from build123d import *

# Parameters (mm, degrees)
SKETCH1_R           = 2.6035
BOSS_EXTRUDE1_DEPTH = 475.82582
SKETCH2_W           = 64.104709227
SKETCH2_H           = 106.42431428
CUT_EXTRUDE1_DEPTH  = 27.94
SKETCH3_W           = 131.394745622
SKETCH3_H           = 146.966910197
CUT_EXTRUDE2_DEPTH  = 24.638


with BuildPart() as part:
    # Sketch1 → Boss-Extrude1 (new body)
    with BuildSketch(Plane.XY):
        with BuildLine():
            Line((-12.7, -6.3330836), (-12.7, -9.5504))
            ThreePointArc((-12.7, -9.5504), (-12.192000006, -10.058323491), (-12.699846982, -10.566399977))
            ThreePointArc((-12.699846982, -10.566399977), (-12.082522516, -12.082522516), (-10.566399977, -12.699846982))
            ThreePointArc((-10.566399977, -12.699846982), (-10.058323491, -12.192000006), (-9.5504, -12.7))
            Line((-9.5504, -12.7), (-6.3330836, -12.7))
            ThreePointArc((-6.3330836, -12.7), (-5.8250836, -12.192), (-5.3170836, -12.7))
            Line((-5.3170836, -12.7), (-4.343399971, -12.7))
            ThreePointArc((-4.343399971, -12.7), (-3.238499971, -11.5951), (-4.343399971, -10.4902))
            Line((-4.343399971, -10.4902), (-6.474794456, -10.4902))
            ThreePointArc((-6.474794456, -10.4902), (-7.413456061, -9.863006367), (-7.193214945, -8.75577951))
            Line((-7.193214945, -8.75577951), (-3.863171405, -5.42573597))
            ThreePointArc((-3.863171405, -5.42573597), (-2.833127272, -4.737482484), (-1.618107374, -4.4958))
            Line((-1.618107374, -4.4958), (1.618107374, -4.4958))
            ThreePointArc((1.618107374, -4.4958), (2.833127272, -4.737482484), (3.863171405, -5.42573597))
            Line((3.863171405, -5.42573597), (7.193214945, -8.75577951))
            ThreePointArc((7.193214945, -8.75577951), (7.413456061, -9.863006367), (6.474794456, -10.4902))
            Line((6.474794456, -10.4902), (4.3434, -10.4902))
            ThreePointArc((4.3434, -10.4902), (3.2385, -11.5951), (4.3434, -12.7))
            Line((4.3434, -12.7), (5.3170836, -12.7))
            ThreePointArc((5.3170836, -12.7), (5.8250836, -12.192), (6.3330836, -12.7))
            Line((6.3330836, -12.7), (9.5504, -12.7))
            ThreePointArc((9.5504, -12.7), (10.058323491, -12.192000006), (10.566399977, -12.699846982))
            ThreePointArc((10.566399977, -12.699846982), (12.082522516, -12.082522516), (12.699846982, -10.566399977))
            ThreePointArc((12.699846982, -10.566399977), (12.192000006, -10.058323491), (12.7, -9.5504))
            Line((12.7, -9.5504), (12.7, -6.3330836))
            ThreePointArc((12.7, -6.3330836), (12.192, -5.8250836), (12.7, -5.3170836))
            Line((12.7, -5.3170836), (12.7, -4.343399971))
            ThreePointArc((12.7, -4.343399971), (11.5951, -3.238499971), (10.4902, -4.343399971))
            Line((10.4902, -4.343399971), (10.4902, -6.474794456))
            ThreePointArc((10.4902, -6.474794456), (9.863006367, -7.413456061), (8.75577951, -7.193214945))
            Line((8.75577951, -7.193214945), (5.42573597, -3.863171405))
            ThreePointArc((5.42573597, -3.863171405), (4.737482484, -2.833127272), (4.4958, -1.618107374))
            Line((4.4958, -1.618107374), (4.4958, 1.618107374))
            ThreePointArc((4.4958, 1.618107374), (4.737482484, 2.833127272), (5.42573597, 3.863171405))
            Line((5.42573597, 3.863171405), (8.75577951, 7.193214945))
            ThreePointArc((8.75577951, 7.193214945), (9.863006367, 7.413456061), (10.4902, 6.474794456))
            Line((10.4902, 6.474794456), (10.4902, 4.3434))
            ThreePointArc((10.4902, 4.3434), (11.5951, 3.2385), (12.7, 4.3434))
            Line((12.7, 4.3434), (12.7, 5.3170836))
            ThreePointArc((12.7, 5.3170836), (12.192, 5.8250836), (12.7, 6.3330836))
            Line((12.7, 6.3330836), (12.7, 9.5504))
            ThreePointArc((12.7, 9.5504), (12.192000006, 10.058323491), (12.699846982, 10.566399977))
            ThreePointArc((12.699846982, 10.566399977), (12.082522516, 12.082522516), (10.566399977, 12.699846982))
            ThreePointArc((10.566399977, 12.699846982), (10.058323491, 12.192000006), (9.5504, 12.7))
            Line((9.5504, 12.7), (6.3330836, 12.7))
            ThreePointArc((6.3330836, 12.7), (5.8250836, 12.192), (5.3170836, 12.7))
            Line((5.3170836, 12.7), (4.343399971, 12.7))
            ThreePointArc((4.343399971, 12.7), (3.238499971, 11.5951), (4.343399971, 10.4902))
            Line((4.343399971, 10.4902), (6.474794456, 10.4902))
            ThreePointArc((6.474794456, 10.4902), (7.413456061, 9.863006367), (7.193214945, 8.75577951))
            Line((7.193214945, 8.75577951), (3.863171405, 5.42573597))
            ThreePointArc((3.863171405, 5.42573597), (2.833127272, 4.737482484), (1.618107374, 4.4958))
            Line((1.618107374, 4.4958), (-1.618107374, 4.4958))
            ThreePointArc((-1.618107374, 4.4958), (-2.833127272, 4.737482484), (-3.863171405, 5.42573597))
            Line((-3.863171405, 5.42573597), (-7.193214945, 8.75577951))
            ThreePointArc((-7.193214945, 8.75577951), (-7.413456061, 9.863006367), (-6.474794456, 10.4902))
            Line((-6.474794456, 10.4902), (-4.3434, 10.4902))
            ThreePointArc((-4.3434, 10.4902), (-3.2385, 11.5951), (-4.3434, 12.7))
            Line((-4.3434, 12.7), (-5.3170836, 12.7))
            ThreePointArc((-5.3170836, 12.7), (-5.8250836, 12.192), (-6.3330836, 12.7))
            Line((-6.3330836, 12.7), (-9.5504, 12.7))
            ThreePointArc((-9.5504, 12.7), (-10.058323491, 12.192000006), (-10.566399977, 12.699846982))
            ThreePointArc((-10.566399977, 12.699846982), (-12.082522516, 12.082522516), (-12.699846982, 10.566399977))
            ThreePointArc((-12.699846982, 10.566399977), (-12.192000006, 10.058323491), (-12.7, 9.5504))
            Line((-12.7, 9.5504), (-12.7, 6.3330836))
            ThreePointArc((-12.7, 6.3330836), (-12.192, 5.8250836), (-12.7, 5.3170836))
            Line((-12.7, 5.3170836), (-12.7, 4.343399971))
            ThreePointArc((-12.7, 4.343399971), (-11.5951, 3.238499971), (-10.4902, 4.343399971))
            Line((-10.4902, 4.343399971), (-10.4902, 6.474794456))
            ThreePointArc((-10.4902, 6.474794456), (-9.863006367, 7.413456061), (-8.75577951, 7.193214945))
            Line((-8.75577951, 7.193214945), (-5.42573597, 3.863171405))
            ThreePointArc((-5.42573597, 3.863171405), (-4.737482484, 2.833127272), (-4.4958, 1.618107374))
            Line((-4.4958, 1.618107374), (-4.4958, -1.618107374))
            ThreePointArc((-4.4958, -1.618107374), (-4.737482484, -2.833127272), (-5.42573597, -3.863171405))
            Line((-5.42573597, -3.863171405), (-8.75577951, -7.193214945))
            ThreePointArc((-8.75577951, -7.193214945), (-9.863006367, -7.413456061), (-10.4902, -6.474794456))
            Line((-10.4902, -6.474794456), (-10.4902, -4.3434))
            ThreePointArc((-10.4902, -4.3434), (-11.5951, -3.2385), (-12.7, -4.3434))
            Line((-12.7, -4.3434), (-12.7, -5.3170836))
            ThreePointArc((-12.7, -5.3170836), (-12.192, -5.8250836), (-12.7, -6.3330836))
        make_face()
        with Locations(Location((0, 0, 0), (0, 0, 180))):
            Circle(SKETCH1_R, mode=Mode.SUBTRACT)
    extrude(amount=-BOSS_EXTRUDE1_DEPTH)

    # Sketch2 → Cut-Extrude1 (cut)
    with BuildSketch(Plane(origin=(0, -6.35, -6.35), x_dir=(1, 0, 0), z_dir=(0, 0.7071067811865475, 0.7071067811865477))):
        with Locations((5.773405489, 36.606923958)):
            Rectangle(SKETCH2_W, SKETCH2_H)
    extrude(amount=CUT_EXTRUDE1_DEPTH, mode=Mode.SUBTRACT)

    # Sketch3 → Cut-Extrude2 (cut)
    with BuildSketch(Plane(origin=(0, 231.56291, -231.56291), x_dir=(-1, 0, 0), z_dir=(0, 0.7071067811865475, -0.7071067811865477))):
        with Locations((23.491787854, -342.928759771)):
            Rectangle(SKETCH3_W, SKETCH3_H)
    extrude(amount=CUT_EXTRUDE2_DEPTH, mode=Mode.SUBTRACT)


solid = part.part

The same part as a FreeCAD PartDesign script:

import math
import FreeCAD as App
import Part
import Sketcher

V = App.Vector
Q = App.Units.Quantity

doc = App.newDocument("Part")
body = doc.addObject("PartDesign::Body", "Body")

# Sketch on XY plane
sketch1 = doc.addObject("Sketcher::SketchObject", "Sketch")
body.addObject(sketch1)
sketch1.AttachmentSupport = (doc.XY_Plane, [""])
sketch1.MapMode = "FlatFace"
sketch1.addGeometry([
    Part.LineSegment(V(-12.7, -6.3, 0), V(-12.7, -9.6, 0)),  # 0
    Part.ArcOfCircle(Part.Circle(V(-12.7, -10.1, 0), V(0, 0, 1), 0.5), math.radians(-90), math.radians(90)),  # 1
    Part.ArcOfCircle(Part.Circle(V(-10.6, -10.6, 0), V(0, 0, 1), 2.1), math.radians(179), math.radians(271)),  # 2
    Part.ArcOfCircle(Part.Circle(V(-10.1, -12.7, 0), V(0, 0, 1), 0.5), math.radians(0), math.radians(180)),  # 3
    Part.LineSegment(V(-9.6, -12.7, 0), V(-6.3, -12.7, 0)),  # 4
    Part.ArcOfCircle(Part.Circle(V(-5.8, -12.7, 0), V(0, 0, 1), 0.5), math.radians(0), math.radians(180)),  # 5
    Part.LineSegment(V(-5.3, -12.7, 0), V(-4.3, -12.7, 0)),  # 6
    Part.ArcOfCircle(Part.Circle(V(-4.3, -11.6, 0), V(0, 0, 1), 1.1), math.radians(-90), math.radians(90)),  # 7
    Part.LineSegment(V(-4.3, -10.5, 0), V(-6.5, -10.5, 0)),  # 8
    Part.ArcOfCircle(Part.Circle(V(-6.5, -9.5, 0), V(0, 0, 1), 1), math.radians(135), math.radians(270)),  # 9
    Part.LineSegment(V(-7.2, -8.8, 0), V(-3.9, -5.4, 0)),  # 10
    Part.ArcOfCircle(Part.Circle(V(-1.6, -7.7, 0), V(0, 0, 1), 3.2), math.radians(90), math.radians(135)),  # 11
    Part.LineSegment(V(-1.6, -4.5, 0), V(1.6, -4.5, 0)),  # 12
    Part.ArcOfCircle(Part.Circle(V(1.6, -7.7, 0), V(0, 0, 1), 3.2), math.radians(45), math.radians(90)),  # 13
    Part.LineSegment(V(3.9, -5.4, 0), V(7.2, -8.8, 0)),  # 14
    Part.ArcOfCircle(Part.Circle(V(6.5, -9.5, 0), V(0, 0, 1), 1), math.radians(-90), math.radians(45)),  # 15
    Part.LineSegment(V(6.5, -10.5, 0), V(4.3, -10.5, 0)),  # 16
    Part.ArcOfCircle(Part.Circle(V(4.3, -11.6, 0), V(0, 0, 1), 1.1), math.radians(90), math.radians(270)),  # 17
    Part.LineSegment(V(4.3, -12.7, 0), V(5.3, -12.7, 0)),  # 18
    Part.ArcOfCircle(Part.Circle(V(5.8, -12.7, 0), V(0, 0, 1), 0.5), math.radians(0), math.radians(180)),  # 19
    Part.LineSegment(V(6.3, -12.7, 0), V(9.6, -12.7, 0)),  # 20
    Part.ArcOfCircle(Part.Circle(V(10.1, -12.7, 0), V(0, 0, 1), 0.5), math.radians(0), math.radians(180)),  # 21
    Part.ArcOfCircle(Part.Circle(V(10.6, -10.6, 0), V(0, 0, 1), 2.1), math.radians(-91), math.radians(1)),  # 22
    Part.ArcOfCircle(Part.Circle(V(12.7, -10.1, 0), V(0, 0, 1), 0.5), math.radians(90), math.radians(270)),  # 23
    Part.LineSegment(V(12.7, -9.6, 0), V(12.7, -6.3, 0)),  # 24
    Part.ArcOfCircle(Part.Circle(V(12.7, -5.8, 0), V(0, 0, 1), 0.5), math.radians(90), math.radians(270)),  # 25
    Part.LineSegment(V(12.7, -5.3, 0), V(12.7, -4.3, 0)),  # 26
    Part.ArcOfCircle(Part.Circle(V(11.6, -4.3, 0), V(0, 0, 1), 1.1), math.radians(0), math.radians(180)),  # 27
    Part.LineSegment(V(10.5, -4.3, 0), V(10.5, -6.5, 0)),  # 28
    Part.ArcOfCircle(Part.Circle(V(9.5, -6.5, 0), V(0, 0, 1), 1), math.radians(-135), math.radians(0)),  # 29
    Part.LineSegment(V(8.8, -7.2, 0), V(5.4, -3.9, 0)),  # 30
    Part.ArcOfCircle(Part.Circle(V(7.7, -1.6, 0), V(0, 0, 1), 3.2), math.radians(180), math.radians(225)),  # 31
    Part.LineSegment(V(4.5, -1.6, 0), V(4.5, 1.6, 0)),  # 32
    Part.ArcOfCircle(Part.Circle(V(7.7, 1.6, 0), V(0, 0, 1), 3.2), math.radians(135), math.radians(180)),  # 33
    Part.LineSegment(V(5.4, 3.9, 0), V(8.8, 7.2, 0)),  # 34
    Part.ArcOfCircle(Part.Circle(V(9.5, 6.5, 0), V(0, 0, 1), 1), math.radians(0), math.radians(135)),  # 35
    Part.LineSegment(V(10.5, 6.5, 0), V(10.5, 4.3, 0)),  # 36
    Part.ArcOfCircle(Part.Circle(V(11.6, 4.3, 0), V(0, 0, 1), 1.1), math.radians(180), math.radians(360)),  # 37
    Part.LineSegment(V(12.7, 4.3, 0), V(12.7, 5.3, 0)),  # 38
    Part.ArcOfCircle(Part.Circle(V(12.7, 5.8, 0), V(0, 0, 1), 0.5), math.radians(90), math.radians(270)),  # 39
    Part.LineSegment(V(12.7, 6.3, 0), V(12.7, 9.6, 0)),  # 40
    Part.ArcOfCircle(Part.Circle(V(12.7, 10.1, 0), V(0, 0, 1), 0.5), math.radians(90), math.radians(270)),  # 41
    Part.ArcOfCircle(Part.Circle(V(10.6, 10.6, 0), V(0, 0, 1), 2.1), math.radians(-1), math.radians(91)),  # 42
    Part.ArcOfCircle(Part.Circle(V(10.1, 12.7, 0), V(0, 0, 1), 0.5), math.radians(180), math.radians(360)),  # 43
    Part.LineSegment(V(9.6, 12.7, 0), V(6.3, 12.7, 0)),  # 44
    Part.ArcOfCircle(Part.Circle(V(5.8, 12.7, 0), V(0, 0, 1), 0.5), math.radians(180), math.radians(360)),  # 45
    Part.LineSegment(V(5.3, 12.7, 0), V(4.3, 12.7, 0)),  # 46
    Part.ArcOfCircle(Part.Circle(V(4.3, 11.6, 0), V(0, 0, 1), 1.1), math.radians(90), math.radians(270)),  # 47
    Part.LineSegment(V(4.3, 10.5, 0), V(6.5, 10.5, 0)),  # 48
    Part.ArcOfCircle(Part.Circle(V(6.5, 9.5, 0), V(0, 0, 1), 1), math.radians(-45), math.radians(90)),  # 49
    Part.LineSegment(V(7.2, 8.8, 0), V(3.9, 5.4, 0)),  # 50
    Part.ArcOfCircle(Part.Circle(V(1.6, 7.7, 0), V(0, 0, 1), 3.2), math.radians(-90), math.radians(-45)),  # 51
    Part.LineSegment(V(1.6, 4.5, 0), V(-1.6, 4.5, 0)),  # 52
    Part.ArcOfCircle(Part.Circle(V(-1.6, 7.7, 0), V(0, 0, 1), 3.2), math.radians(-135), math.radians(-90)),  # 53
    Part.LineSegment(V(-3.9, 5.4, 0), V(-7.2, 8.8, 0)),  # 54
    Part.ArcOfCircle(Part.Circle(V(-6.5, 9.5, 0), V(0, 0, 1), 1), math.radians(90), math.radians(225)),  # 55
    Part.LineSegment(V(-6.5, 10.5, 0), V(-4.3, 10.5, 0)),  # 56
    Part.ArcOfCircle(Part.Circle(V(-4.3, 11.6, 0), V(0, 0, 1), 1.1), math.radians(-90), math.radians(90)),  # 57
    Part.LineSegment(V(-4.3, 12.7, 0), V(-5.3, 12.7, 0)),  # 58
    Part.ArcOfCircle(Part.Circle(V(-5.8, 12.7, 0), V(0, 0, 1), 0.5), math.radians(180), math.radians(360)),  # 59
    Part.LineSegment(V(-6.3, 12.7, 0), V(-9.6, 12.7, 0)),  # 60
    Part.ArcOfCircle(Part.Circle(V(-10.1, 12.7, 0), V(0, 0, 1), 0.5), math.radians(-180), math.radians(0)),  # 61
    Part.ArcOfCircle(Part.Circle(V(-10.6, 10.6, 0), V(0, 0, 1), 2.1), math.radians(89), math.radians(181)),  # 62
    Part.ArcOfCircle(Part.Circle(V(-12.7, 10.1, 0), V(0, 0, 1), 0.5), math.radians(-90), math.radians(90)),  # 63
    Part.LineSegment(V(-12.7, 9.6, 0), V(-12.7, 6.3, 0)),  # 64
    Part.ArcOfCircle(Part.Circle(V(-12.7, 5.8, 0), V(0, 0, 1), 0.5), math.radians(-90), math.radians(90)),  # 65
    Part.LineSegment(V(-12.7, 5.3, 0), V(-12.7, 4.3, 0)),  # 66
    Part.ArcOfCircle(Part.Circle(V(-11.6, 4.3, 0), V(0, 0, 1), 1.1), math.radians(180), math.radians(360)),  # 67
    Part.LineSegment(V(-10.5, 4.3, 0), V(-10.5, 6.5, 0)),  # 68
    Part.ArcOfCircle(Part.Circle(V(-9.5, 6.5, 0), V(0, 0, 1), 1), math.radians(45), math.radians(180)),  # 69
    Part.LineSegment(V(-8.8, 7.2, 0), V(-5.4, 3.9, 0)),  # 70
    Part.ArcOfCircle(Part.Circle(V(-7.7, 1.6, 0), V(0, 0, 1), 3.2), math.radians(0), math.radians(45)),  # 71
    Part.LineSegment(V(-4.5, 1.6, 0), V(-4.5, -1.6, 0)),  # 72
    Part.ArcOfCircle(Part.Circle(V(-7.7, -1.6, 0), V(0, 0, 1), 3.2), math.radians(-45), math.radians(0)),  # 73
    Part.LineSegment(V(-5.4, -3.9, 0), V(-8.8, -7.2, 0)),  # 74
    Part.ArcOfCircle(Part.Circle(V(-9.5, -6.5, 0), V(0, 0, 1), 1), math.radians(180), math.radians(315)),  # 75
    Part.LineSegment(V(-10.5, -6.5, 0), V(-10.5, -4.3, 0)),  # 76
    Part.ArcOfCircle(Part.Circle(V(-11.6, -4.3, 0), V(0, 0, 1), 1.1), math.radians(0), math.radians(180)),  # 77
    Part.LineSegment(V(-12.7, -4.3, 0), V(-12.7, -5.3, 0)),  # 78
    Part.ArcOfCircle(Part.Circle(V(-12.7, -5.8, 0), V(0, 0, 1), 0.5), math.radians(-90), math.radians(90)),  # 79
    Part.Circle(V(0, 0, 0), V(0, 0, 1), 2.6),  # 80
], False)
sketch1.addConstraint([
    Sketcher.Constraint("Coincident", 0, 2, 1, 2),
    Sketcher.Constraint("Coincident", 1, 1, 2, 1),
    Sketcher.Constraint("Coincident", 2, 2, 3, 2),
    Sketcher.Constraint("Coincident", 3, 1, 4, 1),
    Sketcher.Constraint("Coincident", 4, 2, 5, 2),
    Sketcher.Constraint("Coincident", 5, 1, 6, 1),
    Sketcher.Constraint("Tangent", 6, 2, 7, 1),
    Sketcher.Constraint("Tangent", 7, 2, 8, 1),
    Sketcher.Constraint("Tangent", 8, 2, 9, 2),
    Sketcher.Constraint("Tangent", 9, 1, 10, 1),
    Sketcher.Constraint("Tangent", 10, 2, 11, 2),
    Sketcher.Constraint("Tangent", 11, 1, 12, 1),
    Sketcher.Constraint("Tangent", 12, 2, 13, 2),
    Sketcher.Constraint("Tangent", 13, 1, 14, 1),
    Sketcher.Constraint("Tangent", 14, 2, 15, 2),
    Sketcher.Constraint("Tangent", 15, 1, 16, 1),
    Sketcher.Constraint("Tangent", 16, 2, 17, 1),
    Sketcher.Constraint("Tangent", 17, 2, 18, 1),
    Sketcher.Constraint("Coincident", 18, 2, 19, 2),
    Sketcher.Constraint("Coincident", 19, 1, 20, 1),
    Sketcher.Constraint("Coincident", 20, 2, 21, 2),
    Sketcher.Constraint("Coincident", 21, 1, 22, 1),
    Sketcher.Constraint("Coincident", 22, 2, 23, 2),
    Sketcher.Constraint("Coincident", 23, 1, 24, 1),
    Sketcher.Constraint("Coincident", 24, 2, 25, 2),
    Sketcher.Constraint("Coincident", 25, 1, 26, 1),
    Sketcher.Constraint("Tangent", 26, 2, 27, 1),
    Sketcher.Constraint("Tangent", 27, 2, 28, 1),
    Sketcher.Constraint("Tangent", 28, 2, 29, 2),
    Sketcher.Constraint("Tangent", 29, 1, 30, 1),
    Sketcher.Constraint("Tangent", 30, 2, 31, 2),
    Sketcher.Constraint("Tangent", 31, 1, 32, 1),
    Sketcher.Constraint("Tangent", 32, 2, 33, 2),
    Sketcher.Constraint("Tangent", 33, 1, 34, 1),
    Sketcher.Constraint("Tangent", 34, 2, 35, 2),
    Sketcher.Constraint("Tangent", 35, 1, 36, 1),
    Sketcher.Constraint("Tangent", 36, 2, 37, 1),
    Sketcher.Constraint("Tangent", 37, 2, 38, 1),
    Sketcher.Constraint("Coincident", 38, 2, 39, 2),
    Sketcher.Constraint("Coincident", 39, 1, 40, 1),
    Sketcher.Constraint("Coincident", 40, 2, 41, 2),
    Sketcher.Constraint("Coincident", 41, 1, 42, 1),
    Sketcher.Constraint("Coincident", 42, 2, 43, 2),
    Sketcher.Constraint("Coincident", 43, 1, 44, 1),
    Sketcher.Constraint("Coincident", 44, 2, 45, 2),
    Sketcher.Constraint("Coincident", 45, 1, 46, 1),
    Sketcher.Constraint("Tangent", 46, 2, 47, 1),
    Sketcher.Constraint("Tangent", 47, 2, 48, 1),
    Sketcher.Constraint("Tangent", 48, 2, 49, 2),
    Sketcher.Constraint("Tangent", 49, 1, 50, 1),
    Sketcher.Constraint("Tangent", 50, 2, 51, 2),
    Sketcher.Constraint("Tangent", 51, 1, 52, 1),
    Sketcher.Constraint("Tangent", 52, 2, 53, 2),
    Sketcher.Constraint("Tangent", 53, 1, 54, 1),
    Sketcher.Constraint("Tangent", 54, 2, 55, 2),
    Sketcher.Constraint("Tangent", 55, 1, 56, 1),
    Sketcher.Constraint("Tangent", 56, 2, 57, 1),
    Sketcher.Constraint("Tangent", 57, 2, 58, 1),
    Sketcher.Constraint("Coincident", 58, 2, 59, 2),
    Sketcher.Constraint("Coincident", 59, 1, 60, 1),
    Sketcher.Constraint("Coincident", 60, 2, 61, 2),
    Sketcher.Constraint("Coincident", 61, 1, 62, 1),
    Sketcher.Constraint("Coincident", 62, 2, 63, 2),
    Sketcher.Constraint("Coincident", 63, 1, 64, 1),
    Sketcher.Constraint("Coincident", 64, 2, 65, 2),
    Sketcher.Constraint("Coincident", 65, 1, 66, 1),
    Sketcher.Constraint("Tangent", 66, 2, 67, 1),
    Sketcher.Constraint("Tangent", 67, 2, 68, 1),
    Sketcher.Constraint("Tangent", 68, 2, 69, 2),
    Sketcher.Constraint("Tangent", 69, 1, 70, 1),
    Sketcher.Constraint("Tangent", 70, 2, 71, 2),
    Sketcher.Constraint("Tangent", 71, 1, 72, 1),
    Sketcher.Constraint("Tangent", 72, 2, 73, 2),
    Sketcher.Constraint("Tangent", 73, 1, 74, 1),
    Sketcher.Constraint("Tangent", 74, 2, 75, 2),
    Sketcher.Constraint("Tangent", 75, 1, 76, 1),
    Sketcher.Constraint("Tangent", 76, 2, 77, 1),
    Sketcher.Constraint("Tangent", 77, 2, 78, 1),
    Sketcher.Constraint("Coincident", 78, 2, 79, 2),
    Sketcher.Constraint("Coincident", 79, 1, 0, 1),
    Sketcher.Constraint("Vertical", 0),
    Sketcher.Constraint("Horizontal", 4),
    Sketcher.Constraint("Horizontal", 6),
    Sketcher.Constraint("Horizontal", 8),
    Sketcher.Constraint("Horizontal", 12),
    Sketcher.Constraint("Horizontal", 16),
    Sketcher.Constraint("Horizontal", 18),
    Sketcher.Constraint("Horizontal", 20),
    Sketcher.Constraint("Vertical", 24),
    Sketcher.Constraint("Vertical", 26),
    Sketcher.Constraint("Vertical", 28),
    Sketcher.Constraint("Vertical", 32),
    Sketcher.Constraint("Vertical", 36),
    Sketcher.Constraint("Vertical", 38),
    Sketcher.Constraint("Vertical", 40),
    Sketcher.Constraint("Horizontal", 44),
    Sketcher.Constraint("Horizontal", 46),
    Sketcher.Constraint("Horizontal", 48),
    Sketcher.Constraint("Horizontal", 52),
    Sketcher.Constraint("Horizontal", 56),
    Sketcher.Constraint("Horizontal", 58),
    Sketcher.Constraint("Horizontal", 60),
    Sketcher.Constraint("Vertical", 64),
    Sketcher.Constraint("Vertical", 66),
    Sketcher.Constraint("Vertical", 68),
    Sketcher.Constraint("Vertical", 72),
    Sketcher.Constraint("Vertical", 76),
    Sketcher.Constraint("Vertical", 78),
    Sketcher.Constraint("Coincident", 80, 3, -1, 1),
    Sketcher.Constraint("Equal", 1, 3),
    Sketcher.Constraint("Equal", 3, 5),
    Sketcher.Constraint("Equal", 11, 13),
    Sketcher.Constraint("Equal", 9, 15),
    Sketcher.Constraint("Equal", 7, 17),
    Sketcher.Constraint("Equal", 5, 19),
    Sketcher.Constraint("Equal", 19, 21),
    Sketcher.Constraint("Equal", 2, 22),
    Sketcher.Constraint("Equal", 21, 23),
    Sketcher.Constraint("Equal", 23, 25),
    Sketcher.Constraint("Equal", 17, 27),
    Sketcher.Constraint("Equal", 15, 29),
    Sketcher.Constraint("Equal", 13, 31),
    Sketcher.Constraint("Equal", 31, 33),
    Sketcher.Constraint("Equal", 29, 35),
    Sketcher.Constraint("Equal", 27, 37),
    Sketcher.Constraint("Equal", 25, 39),
    Sketcher.Constraint("Equal", 39, 41),
    Sketcher.Constraint("Equal", 22, 42),
    Sketcher.Constraint("Equal", 41, 43),
    Sketcher.Constraint("Equal", 43, 45),
    Sketcher.Constraint("Equal", 37, 47),
    Sketcher.Constraint("Equal", 35, 49),
    Sketcher.Constraint("Equal", 33, 51),
    Sketcher.Constraint("Equal", 51, 53),
    Sketcher.Constraint("Equal", 49, 55),
    Sketcher.Constraint("Equal", 47, 57),
    Sketcher.Constraint("Equal", 45, 59),
    Sketcher.Constraint("Equal", 59, 61),
    Sketcher.Constraint("Equal", 42, 62),
    Sketcher.Constraint("Equal", 61, 63),
    Sketcher.Constraint("Equal", 63, 65),
    Sketcher.Constraint("Equal", 57, 67),
    Sketcher.Constraint("Equal", 55, 69),
    Sketcher.Constraint("Equal", 53, 71),
    Sketcher.Constraint("Equal", 71, 73),
    Sketcher.Constraint("Equal", 69, 75),
    Sketcher.Constraint("Equal", 67, 77),
    Sketcher.Constraint("Equal", 65, 79),
    Sketcher.Constraint("Symmetric", 1, 3, 41, 3, -1, 1),
    Sketcher.Constraint("Symmetric", 2, 3, 42, 3, -1, 1),
    Sketcher.Constraint("Symmetric", 3, 3, 43, 3, -1, 1),
    Sketcher.Constraint("Symmetric", 5, 3, 45, 3, -1, 1),
    Sketcher.Constraint("Symmetric", 7, 3, 47, 3, -1, 1),
    Sketcher.Constraint("Symmetric", 11, 3, 51, 3, -1, 1),
    Sketcher.Constraint("Symmetric", 15, 3, 55, 3, -1, 1),
    Sketcher.Constraint("Symmetric", 19, 3, 59, 3, -1, 1),
    Sketcher.Constraint("Symmetric", 21, 3, 61, 3, -1, 1),
    Sketcher.Constraint("Symmetric", 22, 3, 62, 3, -1, 1),
    Sketcher.Constraint("Symmetric", 23, 3, 63, 3, -1, 1),
    Sketcher.Constraint("Symmetric", 25, 3, 65, 3, -1, 1),
    Sketcher.Constraint("Symmetric", 27, 3, 67, 3, -1, 1),
    Sketcher.Constraint("Symmetric", 31, 3, 71, 3, -1, 1),
    Sketcher.Constraint("Symmetric", 35, 3, 75, 3, -1, 1),
    Sketcher.Constraint("Symmetric", 39, 3, 79, 3, -1, 1),
    Sketcher.Constraint("Symmetric", 9, 3, 15, 3, -2),
    Sketcher.Constraint("Symmetric", 5, 3, 19, 3, -2),
    Sketcher.Constraint("Symmetric", 3, 3, 21, 3, -2),
    Sketcher.Constraint("Symmetric", 2, 3, 22, 3, -2),
    Sketcher.Constraint("Symmetric", 1, 3, 23, 3, -2),
    Sketcher.Constraint("Symmetric", 39, 3, 65, 3, -2),
    Sketcher.Constraint("Symmetric", 37, 3, 67, 3, -2),
    Sketcher.Constraint("Symmetric", 50, 2, 53, 1, -2),
    Sketcher.Constraint("Symmetric", 34, 2, 69, 1, -2),
    Sketcher.Constraint("Symmetric", 30, 2, 73, 1, -2),
    Sketcher.Constraint("Perpendicular", 10, 14),
    Sketcher.Constraint("Parallel", 14, 30),
    Sketcher.Constraint("Perpendicular", 30, 34),
    Sketcher.Constraint("Horizontal", 3, 3, 5, 3),
    Sketcher.Constraint("Horizontal", 27, 3, 77, 3),
    Sketcher.Constraint("Horizontal", 21, 3, 3, 1),
    Sketcher.Constraint("Horizontal", 4, 2, 5, 1),
    Sketcher.Constraint("Horizontal", 18, 2, 19, 1),
    Sketcher.Constraint("Horizontal", 61, 3, 43, 1),
    Sketcher.Constraint("Horizontal", 58, 2, 59, 1),
    Sketcher.Constraint("Vertical", 23, 3, 25, 3),
    Sketcher.Constraint("Vertical", 17, 3, 47, 3),
    Sketcher.Constraint("Vertical", 7, 3, 57, 3),
    Sketcher.Constraint("Vertical", 79, 3, 0, 2),
    Sketcher.Constraint("Vertical", 41, 3, 23, 1),
    Sketcher.Constraint("Vertical", 24, 2, 25, 1),
    Sketcher.Constraint("Vertical", 38, 2, 39, 1),
    Sketcher.Constraint("Vertical", 0, 2, 63, 1),
    Sketcher.Constraint("Equal", 60, 0),
    Sketcher.Constraint("Equal", 58, 26),
    Sketcher.Constraint("Equal", 56, 28),
    Sketcher.Constraint("Equal", 52, 32),
    Sketcher.Constraint("Equal", 14, 30),
    Sketcher.Constraint("Radius", 1, Q("0.02 in")),
    Sketcher.Constraint("Radius", 9, Q("0.04 in")),
    Sketcher.Constraint("Diameter", 80, Q("0.205 in")),
    Sketcher.Constraint("Radius", 2, Q("0.083 in")),
    Sketcher.Constraint("Radius", 11, Q("0.125 in")),
    Sketcher.Constraint("DistanceX", 1, 3, -1, 1, Q("0.5 in")),
    Sketcher.Constraint("DistanceY", 3, 3, -1, 1, Q("0.5 in")),
    Sketcher.Constraint("Radius", 7, Q("0.0435 in")),
    Sketcher.Constraint("DistanceY", 1, 3, -1, 1, Q("0.396 in")),
    Sketcher.Constraint("DistanceX", 2, 3, -1, 1, Q("0.417 in")),
    Sketcher.Constraint("DistanceY", 2, 3, -1, 1, Q("0.417 in")),
    Sketcher.Constraint("DistanceX", 7, 3, -1, 1, Q("0.171 in")),
    Sketcher.Constraint("DistanceY", 11, 3, -1, 1, Q("0.302 in")),
    Sketcher.Constraint("DistanceX", 4, 1, 4, 2, 3.217316),
    Sketcher.Constraint("DistanceX", 8, 2, 8, 1, 2.131394),
])
pad1 = doc.addObject("PartDesign::Pad", "Pad")
body.addObject(pad1)
pad1.Profile = sketch1
pad1.Length = Q("18.7333 in")
pad1.Reversed = True

# Sketch on an angled plane
sketch2 = doc.addObject("Sketcher::SketchObject", "Sketch001")
body.addObject(sketch2)
sketch2.Placement = App.Placement(V(0, -6.35, -6.35), App.Rotation(V(1, 0, 0), V(0, 0.707106781, -0.707106781), V(0, 0.707106781, 0.707106781), "ZXY"))
sketch2.addGeometry([
    Part.LineSegment(V(-26, 90, 0), V(-26, -17, 0)),
    Part.LineSegment(V(-26, -17, 0), V(38, -17, 0)),
    Part.LineSegment(V(38, -17, 0), V(38, 90, 0)),
    Part.LineSegment(V(38, 90, 0), V(-26, 90, 0)),
], False)
sketch2.addConstraint([
    Sketcher.Constraint("Coincident", 0, 2, 1, 1),
    Sketcher.Constraint("Coincident", 1, 2, 2, 1),
    Sketcher.Constraint("Coincident", 2, 2, 3, 1),
    Sketcher.Constraint("Coincident", 3, 2, 0, 1),
    Sketcher.Constraint("Vertical", 0),
    Sketcher.Constraint("Horizontal", 1),
    Sketcher.Constraint("Vertical", 2),
    Sketcher.Constraint("Horizontal", 3),
    Sketcher.Constraint("DistanceX", 1, 1, 1, 2, 64.104709),
    Sketcher.Constraint("DistanceY", 0, 2, 0, 1, 106.424314),
    Sketcher.Constraint("DistanceX", 0, 2, -1, 1, 26.278949),
    Sketcher.Constraint("DistanceY", -1, 1, 2, 2, 89.819081),
])
pocket1 = doc.addObject("PartDesign::Pocket", "Pocket")
body.addObject(pocket1)
pocket1.Profile = sketch2
pocket1.Length = Q("1.1 in")
pocket1.Reversed = True

# Sketch on an angled plane
sketch3 = doc.addObject("Sketcher::SketchObject", "Sketch002")
body.addObject(sketch3)
sketch3.Placement = App.Placement(V(0, 231.56291, -231.56291), App.Rotation(V(-1, 0, 0), V(0, 0.707106781, 0.707106781), V(0, 0.707106781, -0.707106781), "ZXY"))
sketch3.addGeometry([
    Part.LineSegment(V(-42, -269, 0), V(-42, -416, 0)),
    Part.LineSegment(V(-42, -416, 0), V(89, -416, 0)),
    Part.LineSegment(V(89, -416, 0), V(89, -269, 0)),
    Part.LineSegment(V(89, -269, 0), V(-42, -269, 0)),
], False)
sketch3.addConstraint([
    Sketcher.Constraint("Coincident", 0, 2, 1, 1),
    Sketcher.Constraint("Coincident", 1, 2, 2, 1),
    Sketcher.Constraint("Coincident", 2, 2, 3, 1),
    Sketcher.Constraint("Coincident", 3, 2, 0, 1),
    Sketcher.Constraint("Vertical", 0),
    Sketcher.Constraint("Horizontal", 1),
    Sketcher.Constraint("Vertical", 2),
    Sketcher.Constraint("Horizontal", 3),
    Sketcher.Constraint("DistanceY", 0, 2, 0, 1, 146.96691),
    Sketcher.Constraint("DistanceX", 1, 1, 1, 2, 131.394746),
    Sketcher.Constraint("DistanceX", -1, 1, 1, 2, 89.189161),
    Sketcher.Constraint("DistanceY", 0, 2, -1, 1, 416.412215),
])
pocket2 = doc.addObject("PartDesign::Pocket", "Pocket001")
body.addObject(pocket2)
pocket2.Profile = sketch3
pocket2.Length = Q("0.97 in")
pocket2.Reversed = True

doc.recompute()
